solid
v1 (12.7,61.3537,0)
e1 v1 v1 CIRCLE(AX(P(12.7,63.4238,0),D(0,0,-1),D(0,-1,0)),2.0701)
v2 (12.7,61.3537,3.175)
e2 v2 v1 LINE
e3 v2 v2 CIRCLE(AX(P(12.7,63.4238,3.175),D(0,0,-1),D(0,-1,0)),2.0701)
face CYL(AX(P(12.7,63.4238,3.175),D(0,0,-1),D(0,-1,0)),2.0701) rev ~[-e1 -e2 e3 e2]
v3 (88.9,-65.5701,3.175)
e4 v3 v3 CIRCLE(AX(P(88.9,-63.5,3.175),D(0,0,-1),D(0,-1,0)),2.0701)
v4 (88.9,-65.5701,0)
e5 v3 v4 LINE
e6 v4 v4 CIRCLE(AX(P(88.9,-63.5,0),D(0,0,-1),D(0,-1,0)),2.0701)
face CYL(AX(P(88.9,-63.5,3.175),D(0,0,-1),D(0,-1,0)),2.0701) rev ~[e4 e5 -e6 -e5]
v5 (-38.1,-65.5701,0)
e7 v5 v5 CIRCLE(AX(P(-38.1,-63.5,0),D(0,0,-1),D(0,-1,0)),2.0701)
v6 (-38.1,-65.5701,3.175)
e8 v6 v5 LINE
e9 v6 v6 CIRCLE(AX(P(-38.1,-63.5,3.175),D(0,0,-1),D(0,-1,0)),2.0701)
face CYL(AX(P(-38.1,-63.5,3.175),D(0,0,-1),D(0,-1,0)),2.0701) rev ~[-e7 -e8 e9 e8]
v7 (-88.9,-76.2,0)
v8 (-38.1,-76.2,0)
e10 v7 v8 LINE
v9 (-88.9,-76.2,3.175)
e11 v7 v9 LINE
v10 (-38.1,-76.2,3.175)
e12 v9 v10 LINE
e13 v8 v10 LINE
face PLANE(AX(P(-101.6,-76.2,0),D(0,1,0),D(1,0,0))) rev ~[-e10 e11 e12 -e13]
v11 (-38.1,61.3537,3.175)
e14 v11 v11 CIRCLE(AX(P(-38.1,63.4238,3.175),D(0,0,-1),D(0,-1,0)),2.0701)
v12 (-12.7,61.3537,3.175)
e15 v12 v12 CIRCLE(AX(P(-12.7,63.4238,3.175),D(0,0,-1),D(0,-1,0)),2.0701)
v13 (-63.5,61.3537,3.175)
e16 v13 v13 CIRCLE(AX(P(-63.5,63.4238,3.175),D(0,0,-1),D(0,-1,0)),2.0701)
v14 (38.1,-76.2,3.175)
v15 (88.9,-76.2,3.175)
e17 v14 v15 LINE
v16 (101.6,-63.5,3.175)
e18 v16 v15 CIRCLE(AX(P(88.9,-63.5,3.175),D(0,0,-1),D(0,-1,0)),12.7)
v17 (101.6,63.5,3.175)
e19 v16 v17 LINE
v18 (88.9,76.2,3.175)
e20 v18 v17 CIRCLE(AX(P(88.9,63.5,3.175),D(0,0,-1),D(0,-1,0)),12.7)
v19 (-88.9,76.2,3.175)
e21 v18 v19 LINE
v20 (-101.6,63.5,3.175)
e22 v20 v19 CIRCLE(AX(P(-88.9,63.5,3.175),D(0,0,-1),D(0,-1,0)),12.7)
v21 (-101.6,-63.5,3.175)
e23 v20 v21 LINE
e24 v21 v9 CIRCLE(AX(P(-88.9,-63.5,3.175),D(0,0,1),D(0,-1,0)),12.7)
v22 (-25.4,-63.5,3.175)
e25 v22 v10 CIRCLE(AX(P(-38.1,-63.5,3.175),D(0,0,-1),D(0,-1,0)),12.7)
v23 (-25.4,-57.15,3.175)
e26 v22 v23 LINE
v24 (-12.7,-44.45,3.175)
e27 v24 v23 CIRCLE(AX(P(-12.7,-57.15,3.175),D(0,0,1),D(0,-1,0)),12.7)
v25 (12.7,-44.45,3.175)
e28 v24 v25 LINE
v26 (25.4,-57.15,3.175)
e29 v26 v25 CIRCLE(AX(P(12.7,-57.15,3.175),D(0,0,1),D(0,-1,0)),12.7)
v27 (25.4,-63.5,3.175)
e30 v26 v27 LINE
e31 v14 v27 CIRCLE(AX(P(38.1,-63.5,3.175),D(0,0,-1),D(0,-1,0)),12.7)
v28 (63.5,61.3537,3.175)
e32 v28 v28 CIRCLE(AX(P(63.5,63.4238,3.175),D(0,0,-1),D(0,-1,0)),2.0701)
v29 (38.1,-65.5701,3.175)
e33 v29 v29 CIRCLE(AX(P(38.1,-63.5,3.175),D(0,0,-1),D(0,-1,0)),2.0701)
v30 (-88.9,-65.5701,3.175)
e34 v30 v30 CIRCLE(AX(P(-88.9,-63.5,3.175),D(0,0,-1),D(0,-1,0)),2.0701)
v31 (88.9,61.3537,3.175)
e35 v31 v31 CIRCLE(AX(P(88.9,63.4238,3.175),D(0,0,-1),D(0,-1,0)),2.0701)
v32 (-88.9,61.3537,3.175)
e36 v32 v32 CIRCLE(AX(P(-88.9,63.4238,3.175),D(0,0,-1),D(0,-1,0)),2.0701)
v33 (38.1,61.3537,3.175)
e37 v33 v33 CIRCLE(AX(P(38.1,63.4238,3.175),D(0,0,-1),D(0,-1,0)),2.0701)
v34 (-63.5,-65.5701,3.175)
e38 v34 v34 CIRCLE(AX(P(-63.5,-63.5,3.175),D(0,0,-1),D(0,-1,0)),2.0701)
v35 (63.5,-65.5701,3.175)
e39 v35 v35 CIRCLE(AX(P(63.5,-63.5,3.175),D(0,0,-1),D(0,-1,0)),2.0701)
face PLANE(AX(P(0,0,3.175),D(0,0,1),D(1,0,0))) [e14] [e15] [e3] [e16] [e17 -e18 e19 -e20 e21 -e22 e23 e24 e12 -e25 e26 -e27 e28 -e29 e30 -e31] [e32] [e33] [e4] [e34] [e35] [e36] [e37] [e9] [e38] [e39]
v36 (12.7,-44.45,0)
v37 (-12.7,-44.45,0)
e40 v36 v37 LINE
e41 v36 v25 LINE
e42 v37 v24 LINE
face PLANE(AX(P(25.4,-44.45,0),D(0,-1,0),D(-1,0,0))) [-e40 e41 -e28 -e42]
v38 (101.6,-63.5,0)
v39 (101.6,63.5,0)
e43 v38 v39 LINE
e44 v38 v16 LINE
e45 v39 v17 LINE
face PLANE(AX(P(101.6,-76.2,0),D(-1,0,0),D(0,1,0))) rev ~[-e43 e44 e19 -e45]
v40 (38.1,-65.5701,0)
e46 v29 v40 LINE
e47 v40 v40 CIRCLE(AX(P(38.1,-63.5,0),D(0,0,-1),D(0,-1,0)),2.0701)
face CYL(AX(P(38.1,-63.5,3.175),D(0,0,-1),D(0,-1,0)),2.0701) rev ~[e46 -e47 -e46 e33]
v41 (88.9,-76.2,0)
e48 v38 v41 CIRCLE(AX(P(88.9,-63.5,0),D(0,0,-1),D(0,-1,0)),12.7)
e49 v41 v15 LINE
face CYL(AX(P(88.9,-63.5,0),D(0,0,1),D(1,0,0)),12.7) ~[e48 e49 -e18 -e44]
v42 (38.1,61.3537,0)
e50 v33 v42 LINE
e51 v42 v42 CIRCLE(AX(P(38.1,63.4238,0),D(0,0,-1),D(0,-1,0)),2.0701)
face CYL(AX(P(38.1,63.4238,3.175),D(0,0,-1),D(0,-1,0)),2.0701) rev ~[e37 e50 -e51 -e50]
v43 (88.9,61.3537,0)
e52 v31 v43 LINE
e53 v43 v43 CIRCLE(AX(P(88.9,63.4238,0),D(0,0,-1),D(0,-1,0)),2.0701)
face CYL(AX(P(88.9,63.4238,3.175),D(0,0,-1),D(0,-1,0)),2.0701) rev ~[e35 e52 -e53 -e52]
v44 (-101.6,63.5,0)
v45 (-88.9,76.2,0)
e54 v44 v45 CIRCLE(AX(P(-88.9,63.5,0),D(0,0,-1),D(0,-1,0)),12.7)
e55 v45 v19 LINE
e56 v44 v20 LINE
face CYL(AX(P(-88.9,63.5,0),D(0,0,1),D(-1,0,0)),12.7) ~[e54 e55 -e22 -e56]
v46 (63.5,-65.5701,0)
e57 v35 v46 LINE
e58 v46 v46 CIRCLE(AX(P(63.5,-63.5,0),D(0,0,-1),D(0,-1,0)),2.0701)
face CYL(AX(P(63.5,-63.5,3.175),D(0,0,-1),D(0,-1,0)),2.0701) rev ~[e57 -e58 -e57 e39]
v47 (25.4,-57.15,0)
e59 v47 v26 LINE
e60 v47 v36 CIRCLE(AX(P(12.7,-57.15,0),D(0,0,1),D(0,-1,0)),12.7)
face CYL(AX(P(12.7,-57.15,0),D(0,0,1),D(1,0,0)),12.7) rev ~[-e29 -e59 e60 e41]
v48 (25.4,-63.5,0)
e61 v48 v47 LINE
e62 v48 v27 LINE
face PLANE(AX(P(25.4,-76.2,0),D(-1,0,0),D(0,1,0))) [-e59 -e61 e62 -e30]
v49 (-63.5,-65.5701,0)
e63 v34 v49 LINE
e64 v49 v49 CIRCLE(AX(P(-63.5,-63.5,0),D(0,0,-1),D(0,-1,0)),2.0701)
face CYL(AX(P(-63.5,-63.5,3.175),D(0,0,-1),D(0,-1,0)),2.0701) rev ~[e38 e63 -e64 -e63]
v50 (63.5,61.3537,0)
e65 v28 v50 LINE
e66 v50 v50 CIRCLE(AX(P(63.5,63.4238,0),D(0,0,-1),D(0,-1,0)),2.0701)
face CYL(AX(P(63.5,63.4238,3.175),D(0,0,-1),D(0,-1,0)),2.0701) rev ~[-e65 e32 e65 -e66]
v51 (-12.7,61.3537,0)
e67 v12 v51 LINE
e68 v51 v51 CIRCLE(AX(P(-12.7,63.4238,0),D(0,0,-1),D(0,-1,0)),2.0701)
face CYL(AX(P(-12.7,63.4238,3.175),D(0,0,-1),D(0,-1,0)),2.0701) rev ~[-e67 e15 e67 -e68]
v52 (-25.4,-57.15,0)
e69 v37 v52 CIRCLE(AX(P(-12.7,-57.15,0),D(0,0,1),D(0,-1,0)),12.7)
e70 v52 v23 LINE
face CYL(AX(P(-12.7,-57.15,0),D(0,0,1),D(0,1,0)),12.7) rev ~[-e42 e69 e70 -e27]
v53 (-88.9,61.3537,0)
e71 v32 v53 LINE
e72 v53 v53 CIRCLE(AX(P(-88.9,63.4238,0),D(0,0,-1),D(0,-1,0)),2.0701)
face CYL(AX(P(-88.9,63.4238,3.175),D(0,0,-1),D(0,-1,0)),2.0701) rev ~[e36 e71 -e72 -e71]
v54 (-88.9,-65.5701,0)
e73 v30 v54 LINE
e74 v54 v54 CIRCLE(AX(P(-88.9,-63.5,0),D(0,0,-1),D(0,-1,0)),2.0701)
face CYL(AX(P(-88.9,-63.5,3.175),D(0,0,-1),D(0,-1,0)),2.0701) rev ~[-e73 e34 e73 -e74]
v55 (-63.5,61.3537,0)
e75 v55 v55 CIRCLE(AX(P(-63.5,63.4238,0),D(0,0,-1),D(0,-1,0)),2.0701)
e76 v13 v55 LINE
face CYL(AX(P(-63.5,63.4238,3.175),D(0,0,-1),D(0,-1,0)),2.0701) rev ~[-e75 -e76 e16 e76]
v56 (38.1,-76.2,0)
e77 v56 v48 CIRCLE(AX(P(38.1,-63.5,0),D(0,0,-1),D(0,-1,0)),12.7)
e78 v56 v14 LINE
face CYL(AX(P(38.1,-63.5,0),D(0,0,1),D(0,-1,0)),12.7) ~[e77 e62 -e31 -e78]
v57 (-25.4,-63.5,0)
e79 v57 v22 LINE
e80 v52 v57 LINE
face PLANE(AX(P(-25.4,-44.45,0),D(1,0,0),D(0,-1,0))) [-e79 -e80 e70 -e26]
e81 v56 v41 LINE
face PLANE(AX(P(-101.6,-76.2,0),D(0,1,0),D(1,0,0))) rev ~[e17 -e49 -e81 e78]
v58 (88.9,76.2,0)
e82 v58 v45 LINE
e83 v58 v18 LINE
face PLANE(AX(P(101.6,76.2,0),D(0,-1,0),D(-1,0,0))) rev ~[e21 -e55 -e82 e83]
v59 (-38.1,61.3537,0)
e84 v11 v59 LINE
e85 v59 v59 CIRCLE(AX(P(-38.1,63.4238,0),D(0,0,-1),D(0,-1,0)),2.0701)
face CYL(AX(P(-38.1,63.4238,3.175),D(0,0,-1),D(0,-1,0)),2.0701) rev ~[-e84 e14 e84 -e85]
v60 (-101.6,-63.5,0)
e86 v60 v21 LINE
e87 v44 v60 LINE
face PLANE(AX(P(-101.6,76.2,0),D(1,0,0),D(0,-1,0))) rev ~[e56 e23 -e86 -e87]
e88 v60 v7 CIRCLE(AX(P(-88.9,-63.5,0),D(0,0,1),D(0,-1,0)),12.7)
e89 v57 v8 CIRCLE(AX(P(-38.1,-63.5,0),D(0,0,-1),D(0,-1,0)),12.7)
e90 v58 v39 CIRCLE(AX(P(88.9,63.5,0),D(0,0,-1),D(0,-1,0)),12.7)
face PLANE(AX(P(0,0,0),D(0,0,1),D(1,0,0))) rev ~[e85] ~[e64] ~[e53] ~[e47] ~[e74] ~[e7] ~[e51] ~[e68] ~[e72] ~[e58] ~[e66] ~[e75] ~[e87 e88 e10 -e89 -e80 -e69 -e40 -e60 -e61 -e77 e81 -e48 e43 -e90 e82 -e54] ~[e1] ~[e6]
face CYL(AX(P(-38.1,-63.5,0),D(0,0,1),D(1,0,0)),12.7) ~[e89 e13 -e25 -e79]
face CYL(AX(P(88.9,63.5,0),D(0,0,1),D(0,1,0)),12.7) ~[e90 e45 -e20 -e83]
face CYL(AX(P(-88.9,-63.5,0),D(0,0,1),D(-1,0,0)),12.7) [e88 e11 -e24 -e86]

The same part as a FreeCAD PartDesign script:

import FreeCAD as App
import Part
import Sketcher
Q = App.Units.Quantity


def edges_at(feature, points):
    """Names of the edges that pass closest to the given points."""
    edges = feature.Shape.Edges
    near = lambda p: min(range(len(edges)), key=lambda i: edges[i].distToShape(Part.Vertex(*p))[0])
    return sorted({f"Edge{near(p) + 1}" for p in points})


def add_polygon(sketch, points):
    """Adds a closed chain of lines whose ends are joined by coincident constraints."""
    first, n = sketch.GeometryCount, len(points)
    for a, b in zip(points, points[1:] + points[:1]):
        sketch.addGeometry(Part.LineSegment(App.Vector(*a, 0), App.Vector(*b, 0)), False)
    for i in range(n):
        sketch.addConstraint(Sketcher.Constraint("Coincident", first + i, 2, first + (i + 1) % n, 1))

doc = App.newDocument("Part")
params = doc.addObject("Spreadsheet::Sheet", "Params")
for row, (alias, value) in enumerate([
    ("sketch1_width", "8 in"),
    ("sketch1_height", "6 in"),
    ("pad1_length", "0.125 in"),
    ("fillet_radius", "0.5 in"),
    ("sketch2_diameter", "0.163 in"),
    ("hole_diameter", "0.163 in"),
    ("sketch3_width", "2 in"),
    ("sketch3_height", "1.25 in"),
    ("fillet2_radius", "0.5 in"),
], start=1):
    params.set(f"A{row}", alias)
    params.set(f"B{row}", "=" + value)
    params.setAlias(f"B{row}", alias)

body = doc.addObject("PartDesign::Body", "Body")

# Sketch on XY plane
sketch1 = body.newObject("Sketcher::SketchObject", "Sketch")
sketch1.AttachmentSupport = (doc.getObject("XY_Plane"), [""])
sketch1.MapMode = "FlatFace"
add_polygon(sketch1, [(-101.6, 76.2), (-101.6, -76.2), (101.6, -76.2), (101.6, 76.2)])  # lines 0-3
sketch1.addConstraint([
    Sketcher.Constraint("Vertical", 0),
    Sketcher.Constraint("Horizontal", 1),
    Sketcher.Constraint("Vertical", 2),
    Sketcher.Constraint("Horizontal", 3),
    Sketcher.Constraint("Symmetric", 0, 2, 2, 2, -1, 1),
    Sketcher.Constraint("DistanceX", 1, 1, 1, 2, Q("8 in")),
    Sketcher.Constraint("DistanceY", 0, 2, 0, 1, Q("6 in")),
])
sketch1.setExpression("Constraints[9]", "Params.sketch1_width")
sketch1.setExpression("Constraints[10]", "Params.sketch1_height")
pad1 = body.newObject("PartDesign::Pad", "Pad")
pad1.Profile = sketch1
pad1.setExpression("Length", "Params.pad1_length")
doc.recompute()

fillet = body.newObject("PartDesign::Fillet", "Fillet")
fillet.Base = (pad1, edges_at(pad1, [
    (101.6, 76.2, 1.587),
    (101.6, -76.2, 1.587),
    (-101.6, -76.2, 1.587),
    (-101.6, 76.2, 1.587),
]))
fillet.setExpression("Radius", "Params.fillet_radius")

# Sketch on XY plane
sketch2 = body.newObject("Sketcher::SketchObject", "Sketch001")
sketch2.AttachmentSupport = (doc.getObject("XY_Plane"), [""])
sketch2.MapMode = "FlatFace"
sketch2.AttachmentOffset = App.Placement(App.Vector(0, 0, 0.125 * 25.4), App.Rotation())
sketch2.addGeometry([
    Part.Circle(App.Vector(-63.5, -63.5, 0), App.Vector(0, 0, 1), 2.0701),  # 0
    Part.Circle(App.Vector(-88.9, -63.5, 0), App.Vector(0, 0, 1), 2.0701),  # 1
    Part.Circle(App.Vector(-38.1, -63.5, 0), App.Vector(0, 0, 1), 2.0701),  # 2
    Part.Circle(App.Vector(-12.7, -63.5, 0), App.Vector(0, 0, 1), 2.0701),  # 3
    Part.Circle(App.Vector(12.7, -63.5, 0), App.Vector(0, 0, 1), 2.0701),  # 4
    Part.Circle(App.Vector(38.1, -63.5, 0), App.Vector(0, 0, 1), 2.0701),  # 5
    Part.Circle(App.Vector(63.5, -63.5, 0), App.Vector(0, 0, 1), 2.0701),  # 6
    Part.Circle(App.Vector(88.9, -63.5, 0), App.Vector(0, 0, 1), 2.0701),  # 7
    Part.Circle(App.Vector(-88.9, 63.4238, 0), App.Vector(0, 0, 1), 2.0701),  # 8
    Part.Circle(App.Vector(-63.5, 63.4238, 0), App.Vector(0, 0, 1), 2.0701),  # 9
    Part.Circle(App.Vector(-38.1, 63.4238, 0), App.Vector(0, 0, 1), 2.0701),  # 10
    Part.Circle(App.Vector(-12.7, 63.4238, 0), App.Vector(0, 0, 1), 2.0701),  # 11
    Part.Circle(App.Vector(12.7, 63.4238, 0), App.Vector(0, 0, 1), 2.0701),  # 12
    Part.Circle(App.Vector(38.1, 63.4238, 0), App.Vector(0, 0, 1), 2.0701),  # 13
    Part.Circle(App.Vector(63.5, 63.4238, 0), App.Vector(0, 0, 1), 2.0701),  # 14
    Part.Circle(App.Vector(88.9, 63.4238, 0), App.Vector(0, 0, 1), 2.0701),  # 15
], False)
sketch2.addConstraint([
    Sketcher.Constraint("Equal", 0, 1),
    Sketcher.Constraint("Equal", 1, 2),
    Sketcher.Constraint("Equal", 2, 3),
    Sketcher.Constraint("Equal", 3, 4),
    Sketcher.Constraint("Equal", 4, 5),
    Sketcher.Constraint("Equal", 5, 6),
    Sketcher.Constraint("Equal", 6, 7),
    Sketcher.Constraint("Equal", 7, 8),
    Sketcher.Constraint("Equal", 8, 9),
    Sketcher.Constraint("Equal", 9, 10),
    Sketcher.Constraint("Equal", 10, 11),
    Sketcher.Constraint("Equal", 11, 12),
    Sketcher.Constraint("Equal", 12, 13),
    Sketcher.Constraint("Equal", 13, 14),
    Sketcher.Constraint("Equal", 14, 15),
    Sketcher.Constraint("Symmetric", 3, 3, 4, 3, -2),
    Sketcher.Constraint("Symmetric", 2, 3, 5, 3, -2),
    Sketcher.Constraint("Symmetric", 0, 3, 6, 3, -2),
    Sketcher.Constraint("Symmetric", 1, 3, 7, 3, -2),
    Sketcher.Constraint("Symmetric", 11, 3, 12, 3, -2),
    Sketcher.Constraint("Symmetric", 10, 3, 13, 3, -2),
    Sketcher.Constraint("Symmetric", 9, 3, 14, 3, -2),
    Sketcher.Constraint("Symmetric", 8, 3, 15, 3, -2),
    Sketcher.Constraint("Horizontal", 0, 3, 1, 3),
    Sketcher.Constraint("Horizontal", 1, 3, 2, 3),
    Sketcher.Constraint("Horizontal", 2, 3, 3, 3),
    Sketcher.Constraint("Horizontal", 8, 3, 9, 3),
    Sketcher.Constraint("Horizontal", 9, 3, 10, 3),
    Sketcher.Constraint("Horizontal", 10, 3, 11, 3),
    Sketcher.Constraint("Vertical", 1, 3, 8, 3),
    Sketcher.Constraint("Vertical", 0, 3, 9, 3),
    Sketcher.Constraint("Vertical", 2, 3, 10, 3),
    Sketcher.Constraint("Vertical", 3, 3, 11, 3),
    Sketcher.Constraint("Diameter", 0, Q("0.163 in")),
    Sketcher.Constraint("DistanceX", 1, 3, 0, 3, Q("1 in")),
    Sketcher.Constraint("DistanceX", 0, 3, 2, 3, Q("1 in")),
    Sketcher.Constraint("DistanceX", 2, 3, 3, 3, Q("1 in")),
    Sketcher.Constraint("DistanceX", 3, 3, 4, 3, Q("1 in")),
    Sketcher.Constraint("DistanceY", 0, 3, -1, 1, Q("2.5 in")),
    Sketcher.Constraint("DistanceY", -1, 1, 8, 3, Q("2.497 in")),
])
sketch2.setExpression("Constraints[33]", "Params.sketch2_diameter")
doc.recompute()
hole = body.newObject("PartDesign::Hole", "Hole")
hole.Profile = sketch2
hole.ThreadType = "None"
hole.setExpression("Diameter", "Params.hole_diameter")
hole.DepthType = "ThroughAll"

# Sketch on XY plane
sketch3 = body.newObject("Sketcher::SketchObject", "Sketch002")
sketch3.AttachmentSupport = (doc.getObject("XY_Plane"), [""])
sketch3.MapMode = "FlatFace"
add_polygon(sketch3, [(25.4, -76.2), (-25.4, -76.2), (-25.4, -44.45), (25.4, -44.45)])  # lines 0-3
sketch3.addConstraint([
    Sketcher.Constraint("Horizontal", 0),
    Sketcher.Constraint("Vertical", 1),
    Sketcher.Constraint("Horizontal", 2),
    Sketcher.Constraint("Vertical", 3),
    Sketcher.Constraint("DistanceX", 0, 2, 0, 1, Q("2 in")),
    Sketcher.Constraint("DistanceY", 0, 2, -1, 1, Q("3 in")),
    Sketcher.Constraint("DistanceY", 1, 1, 1, 2, Q("1.25 in")),
    Sketcher.Constraint("DistanceX", 0, 2, -1, 1, Q("1 in")),
])
sketch3.setExpression("Constraints[8]", "Params.sketch3_width")
sketch3.setExpression("Constraints[10]", "Params.sketch3_height")
pocket1 = body.newObject("PartDesign::Pocket", "Pocket")
pocket1.Profile = sketch3
pocket1.Type = "ThroughAll"
pocket1.Reversed = True
doc.recompute()

fillet2 = body.newObject("PartDesign::Fillet", "Fillet001")
fillet2.Base = (pocket1, edges_at(pocket1, [
    (-25.4, -76.2, 1.587),
    (-25.4, -44.45, 1.587),
    (25.4, -44.45, 1.587),
    (25.4, -76.2, 1.587),
]))
fillet2.setExpression("Radius", "Params.fillet2_radius")

doc.recompute()
